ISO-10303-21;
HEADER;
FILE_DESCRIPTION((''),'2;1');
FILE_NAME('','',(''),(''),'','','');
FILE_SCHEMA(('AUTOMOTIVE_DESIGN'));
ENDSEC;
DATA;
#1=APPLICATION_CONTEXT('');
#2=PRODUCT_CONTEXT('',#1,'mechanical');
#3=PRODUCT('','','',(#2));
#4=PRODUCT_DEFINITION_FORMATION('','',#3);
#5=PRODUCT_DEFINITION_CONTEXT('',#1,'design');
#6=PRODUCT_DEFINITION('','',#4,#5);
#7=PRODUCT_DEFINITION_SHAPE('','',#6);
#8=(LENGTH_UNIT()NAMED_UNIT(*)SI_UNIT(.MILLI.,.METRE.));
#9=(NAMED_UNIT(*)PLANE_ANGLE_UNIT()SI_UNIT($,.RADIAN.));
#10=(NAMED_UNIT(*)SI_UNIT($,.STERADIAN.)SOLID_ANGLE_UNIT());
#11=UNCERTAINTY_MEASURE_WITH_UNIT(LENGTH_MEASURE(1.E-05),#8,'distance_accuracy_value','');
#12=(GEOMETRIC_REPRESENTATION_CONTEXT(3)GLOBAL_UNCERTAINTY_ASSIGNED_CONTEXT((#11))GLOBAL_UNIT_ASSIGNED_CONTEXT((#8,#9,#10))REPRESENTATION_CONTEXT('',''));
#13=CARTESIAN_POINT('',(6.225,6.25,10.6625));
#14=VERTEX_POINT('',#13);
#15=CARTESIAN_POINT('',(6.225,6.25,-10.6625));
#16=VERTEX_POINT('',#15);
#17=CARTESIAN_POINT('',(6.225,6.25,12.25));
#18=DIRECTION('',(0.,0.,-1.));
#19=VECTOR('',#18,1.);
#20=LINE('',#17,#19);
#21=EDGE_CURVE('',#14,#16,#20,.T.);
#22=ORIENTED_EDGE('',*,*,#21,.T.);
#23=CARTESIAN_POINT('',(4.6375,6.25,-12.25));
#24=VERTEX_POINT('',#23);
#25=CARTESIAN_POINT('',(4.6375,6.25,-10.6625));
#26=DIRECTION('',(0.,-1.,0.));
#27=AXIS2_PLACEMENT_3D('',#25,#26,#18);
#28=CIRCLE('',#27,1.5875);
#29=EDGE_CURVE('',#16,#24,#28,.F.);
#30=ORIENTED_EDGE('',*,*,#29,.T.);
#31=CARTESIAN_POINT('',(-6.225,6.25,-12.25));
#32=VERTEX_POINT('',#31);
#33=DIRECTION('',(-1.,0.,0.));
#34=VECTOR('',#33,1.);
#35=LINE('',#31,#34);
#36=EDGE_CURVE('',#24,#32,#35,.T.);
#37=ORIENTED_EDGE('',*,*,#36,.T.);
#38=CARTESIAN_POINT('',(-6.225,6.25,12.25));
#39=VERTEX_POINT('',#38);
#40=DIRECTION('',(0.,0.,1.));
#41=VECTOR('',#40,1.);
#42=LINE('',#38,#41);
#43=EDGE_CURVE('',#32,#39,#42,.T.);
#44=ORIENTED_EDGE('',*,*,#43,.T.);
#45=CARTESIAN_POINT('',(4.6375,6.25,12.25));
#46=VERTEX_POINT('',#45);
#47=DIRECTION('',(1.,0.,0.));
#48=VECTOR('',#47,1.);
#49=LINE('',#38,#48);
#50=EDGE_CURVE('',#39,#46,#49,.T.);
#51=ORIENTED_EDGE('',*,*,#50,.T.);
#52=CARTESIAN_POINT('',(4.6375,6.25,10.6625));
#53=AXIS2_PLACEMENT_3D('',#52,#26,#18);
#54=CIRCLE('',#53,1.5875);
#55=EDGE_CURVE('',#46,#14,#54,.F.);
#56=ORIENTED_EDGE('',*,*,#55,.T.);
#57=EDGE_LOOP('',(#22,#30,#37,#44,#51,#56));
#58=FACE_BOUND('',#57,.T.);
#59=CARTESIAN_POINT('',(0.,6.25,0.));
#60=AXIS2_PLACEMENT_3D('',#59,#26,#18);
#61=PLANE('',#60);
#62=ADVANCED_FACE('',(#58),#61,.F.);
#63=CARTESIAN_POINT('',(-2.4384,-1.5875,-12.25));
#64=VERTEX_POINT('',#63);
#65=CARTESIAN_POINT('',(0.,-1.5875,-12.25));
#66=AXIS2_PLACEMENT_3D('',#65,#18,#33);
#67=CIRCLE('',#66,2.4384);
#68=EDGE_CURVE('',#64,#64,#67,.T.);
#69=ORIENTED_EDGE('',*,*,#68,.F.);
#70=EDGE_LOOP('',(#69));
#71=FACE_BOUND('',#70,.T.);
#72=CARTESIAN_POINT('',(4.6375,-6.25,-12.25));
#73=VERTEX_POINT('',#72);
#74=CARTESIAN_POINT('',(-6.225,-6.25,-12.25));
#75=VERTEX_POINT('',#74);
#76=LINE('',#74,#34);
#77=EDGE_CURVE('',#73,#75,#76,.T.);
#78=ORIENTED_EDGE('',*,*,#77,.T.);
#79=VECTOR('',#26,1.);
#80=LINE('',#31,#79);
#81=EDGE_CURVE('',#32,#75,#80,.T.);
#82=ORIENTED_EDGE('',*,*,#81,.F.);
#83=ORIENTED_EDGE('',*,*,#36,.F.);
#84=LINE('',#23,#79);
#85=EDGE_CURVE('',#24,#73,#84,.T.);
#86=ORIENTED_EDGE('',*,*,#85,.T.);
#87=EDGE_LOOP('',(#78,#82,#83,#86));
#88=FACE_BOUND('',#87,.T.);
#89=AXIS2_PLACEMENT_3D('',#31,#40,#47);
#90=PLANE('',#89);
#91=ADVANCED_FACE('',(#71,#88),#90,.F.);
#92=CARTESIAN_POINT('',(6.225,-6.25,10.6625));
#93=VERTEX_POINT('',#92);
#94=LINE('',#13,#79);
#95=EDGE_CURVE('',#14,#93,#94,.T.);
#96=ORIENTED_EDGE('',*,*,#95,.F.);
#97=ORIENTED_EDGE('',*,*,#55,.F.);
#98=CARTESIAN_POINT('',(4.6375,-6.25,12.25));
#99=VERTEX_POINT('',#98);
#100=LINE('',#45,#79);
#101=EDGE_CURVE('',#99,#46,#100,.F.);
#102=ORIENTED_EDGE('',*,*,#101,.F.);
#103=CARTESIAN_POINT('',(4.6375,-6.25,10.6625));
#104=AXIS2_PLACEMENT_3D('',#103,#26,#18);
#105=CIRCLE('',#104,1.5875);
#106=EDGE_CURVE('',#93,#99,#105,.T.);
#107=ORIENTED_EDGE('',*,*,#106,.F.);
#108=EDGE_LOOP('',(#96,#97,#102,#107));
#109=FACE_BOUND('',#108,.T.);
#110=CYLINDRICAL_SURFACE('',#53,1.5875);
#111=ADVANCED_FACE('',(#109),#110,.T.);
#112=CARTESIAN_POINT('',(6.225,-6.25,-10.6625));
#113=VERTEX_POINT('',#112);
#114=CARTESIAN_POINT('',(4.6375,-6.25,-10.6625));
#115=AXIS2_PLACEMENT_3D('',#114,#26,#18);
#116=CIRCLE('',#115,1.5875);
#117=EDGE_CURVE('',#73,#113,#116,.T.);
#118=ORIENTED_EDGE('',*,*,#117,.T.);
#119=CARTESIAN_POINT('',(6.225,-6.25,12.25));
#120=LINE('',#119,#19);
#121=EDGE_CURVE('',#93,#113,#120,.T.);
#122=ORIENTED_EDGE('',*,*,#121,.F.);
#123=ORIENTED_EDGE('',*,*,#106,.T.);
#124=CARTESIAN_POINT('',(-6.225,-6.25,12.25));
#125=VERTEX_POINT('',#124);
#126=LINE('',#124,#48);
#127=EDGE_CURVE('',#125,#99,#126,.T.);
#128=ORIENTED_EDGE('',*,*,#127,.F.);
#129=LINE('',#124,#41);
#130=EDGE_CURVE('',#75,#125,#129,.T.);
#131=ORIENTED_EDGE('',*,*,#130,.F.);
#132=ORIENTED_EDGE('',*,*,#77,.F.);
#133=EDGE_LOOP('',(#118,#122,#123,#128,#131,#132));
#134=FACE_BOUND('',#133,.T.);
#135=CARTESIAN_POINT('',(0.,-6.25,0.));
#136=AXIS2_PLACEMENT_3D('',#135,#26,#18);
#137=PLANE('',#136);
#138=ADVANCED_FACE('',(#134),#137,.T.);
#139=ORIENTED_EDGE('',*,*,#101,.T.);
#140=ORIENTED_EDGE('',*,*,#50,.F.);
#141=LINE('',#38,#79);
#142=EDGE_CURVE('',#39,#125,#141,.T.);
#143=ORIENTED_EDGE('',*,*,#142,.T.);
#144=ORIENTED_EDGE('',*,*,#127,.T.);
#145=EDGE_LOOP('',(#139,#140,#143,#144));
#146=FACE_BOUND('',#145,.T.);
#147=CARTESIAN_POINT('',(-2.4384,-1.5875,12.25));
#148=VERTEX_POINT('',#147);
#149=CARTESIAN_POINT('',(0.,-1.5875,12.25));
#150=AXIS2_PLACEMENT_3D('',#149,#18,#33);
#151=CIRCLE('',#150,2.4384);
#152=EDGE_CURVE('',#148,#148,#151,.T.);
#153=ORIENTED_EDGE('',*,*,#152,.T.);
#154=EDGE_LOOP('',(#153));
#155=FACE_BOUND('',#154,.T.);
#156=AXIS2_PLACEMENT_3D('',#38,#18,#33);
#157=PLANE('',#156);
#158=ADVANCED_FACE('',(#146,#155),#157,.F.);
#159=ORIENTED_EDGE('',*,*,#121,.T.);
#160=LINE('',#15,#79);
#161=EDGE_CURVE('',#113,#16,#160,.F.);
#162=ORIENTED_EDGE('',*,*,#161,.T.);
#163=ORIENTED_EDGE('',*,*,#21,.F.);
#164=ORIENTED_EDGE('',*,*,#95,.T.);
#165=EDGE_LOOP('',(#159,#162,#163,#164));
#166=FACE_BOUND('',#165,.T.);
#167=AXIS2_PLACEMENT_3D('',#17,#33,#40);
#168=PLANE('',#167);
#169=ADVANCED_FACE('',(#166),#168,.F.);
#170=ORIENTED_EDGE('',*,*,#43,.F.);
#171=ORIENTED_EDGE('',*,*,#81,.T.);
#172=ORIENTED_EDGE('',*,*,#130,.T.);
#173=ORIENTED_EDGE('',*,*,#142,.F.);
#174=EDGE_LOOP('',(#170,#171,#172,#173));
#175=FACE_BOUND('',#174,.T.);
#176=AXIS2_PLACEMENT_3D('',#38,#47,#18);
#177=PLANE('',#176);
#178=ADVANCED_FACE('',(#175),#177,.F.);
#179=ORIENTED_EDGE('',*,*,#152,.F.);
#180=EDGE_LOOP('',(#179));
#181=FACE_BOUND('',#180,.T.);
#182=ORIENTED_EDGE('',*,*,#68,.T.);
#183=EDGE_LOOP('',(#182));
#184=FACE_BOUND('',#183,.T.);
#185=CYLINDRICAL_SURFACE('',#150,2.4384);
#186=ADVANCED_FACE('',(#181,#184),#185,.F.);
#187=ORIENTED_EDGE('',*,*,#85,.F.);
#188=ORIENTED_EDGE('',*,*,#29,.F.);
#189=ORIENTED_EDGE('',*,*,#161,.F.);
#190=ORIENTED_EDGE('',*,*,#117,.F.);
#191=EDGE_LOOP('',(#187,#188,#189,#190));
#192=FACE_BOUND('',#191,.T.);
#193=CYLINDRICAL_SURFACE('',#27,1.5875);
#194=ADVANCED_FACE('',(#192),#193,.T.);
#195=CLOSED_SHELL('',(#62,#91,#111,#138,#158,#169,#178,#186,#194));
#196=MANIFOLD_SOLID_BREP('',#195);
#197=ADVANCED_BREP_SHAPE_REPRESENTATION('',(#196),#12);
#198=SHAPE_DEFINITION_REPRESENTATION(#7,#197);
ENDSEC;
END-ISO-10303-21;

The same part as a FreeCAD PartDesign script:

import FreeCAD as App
import Part
import Sketcher
from FreeCAD import Vector
Q = App.Units.Quantity


def edges_at(feature, points):
    """Names of the edges that pass closest to the given points."""
    edges = feature.Shape.Edges
    near = lambda p: min(range(len(edges)), key=lambda i: edges[i].distToShape(Part.Vertex(*p))[0])
    return sorted({f"Edge{near(p) + 1}" for p in points})


def add_polygon(sketch, points):
    """Adds a closed chain of lines whose ends are joined by coincident constraints."""
    first, n = sketch.GeometryCount, len(points)
    for a, b in zip(points, points[1:] + points[:1]):
        sketch.addGeometry(Part.LineSegment(App.Vector(*a, 0), App.Vector(*b, 0)), False)
    for i in range(n):
        sketch.addConstraint(Sketcher.Constraint("Coincident", first + i, 2, first + (i + 1) % n, 1))

doc = App.newDocument("Part")
body = doc.addObject("PartDesign::Body", "Body")

sketch1 = body.newObject("Sketcher::SketchObject", "Sketch")
sketch1.AttachmentSupport = (doc.getObject("XZ_Plane"), [""])
sketch1.MapMode = "FlatFace"
add_polygon(sketch1, [(-6, -12), (-6, 12), (6, 12), (6, -12)])
sketch1.addConstraint(Sketcher.Constraint("Vertical", 0))
sketch1.addConstraint(Sketcher.Constraint("Horizontal", 1))
sketch1.addConstraint(Sketcher.Constraint("Vertical", 2))
sketch1.addConstraint(Sketcher.Constraint("Horizontal", 3))
sketch1.addConstraint(Sketcher.Constraint("Symmetric", 0, 2, 2, 2, -1, 1))
sketch1.addConstraint(Sketcher.Constraint("DistanceX", 1, 1, 1, 2, Q("12.45 mm")))
sketch1.addConstraint(Sketcher.Constraint("DistanceY", 0, 1, 0, 2, Q("24.5 mm")))
pad1 = body.newObject("PartDesign::Pad", "Pad")
pad1.Profile = sketch1
pad1.Length = 12.5
pad1.Midplane = True
doc.recompute()

fillet = body.newObject("PartDesign::Fillet", "Fillet")
fillet.Base = (pad1, edges_at(pad1, [(6.225, 0, 12.25), (6.225, 0, -12.25)]))
fillet.Radius = Q("0.0625 in")

sketch2 = body.newObject("Sketcher::SketchObject", "Sketch001")
sketch2.AttachmentSupport = (doc.getObject("XY_Plane"), [""])
sketch2.MapMode = "FlatFace"
sketch2.AttachmentOffset = App.Placement(Vector(0, 0, -12.25), App.Rotation())
sketch2.addGeometry(Part.Circle(Vector(0, -1.6, 0), Vector(0, 0, 1), 2.4), False)
sketch2.addConstraint(Sketcher.Constraint("PointOnObject", 0, 3, -2))
sketch2.addConstraint(Sketcher.Constraint("Diameter", 0, Q("0.192 in")))
sketch2.addConstraint(Sketcher.Constraint("DistanceY", 0, 3, -1, 1, Q("0.0625 in")))
pocket1 = body.newObject("PartDesign::Pocket", "Pocket")
pocket1.Profile = sketch2
pocket1.Type = "ThroughAll"
pocket1.Reversed = True

doc.recompute()
